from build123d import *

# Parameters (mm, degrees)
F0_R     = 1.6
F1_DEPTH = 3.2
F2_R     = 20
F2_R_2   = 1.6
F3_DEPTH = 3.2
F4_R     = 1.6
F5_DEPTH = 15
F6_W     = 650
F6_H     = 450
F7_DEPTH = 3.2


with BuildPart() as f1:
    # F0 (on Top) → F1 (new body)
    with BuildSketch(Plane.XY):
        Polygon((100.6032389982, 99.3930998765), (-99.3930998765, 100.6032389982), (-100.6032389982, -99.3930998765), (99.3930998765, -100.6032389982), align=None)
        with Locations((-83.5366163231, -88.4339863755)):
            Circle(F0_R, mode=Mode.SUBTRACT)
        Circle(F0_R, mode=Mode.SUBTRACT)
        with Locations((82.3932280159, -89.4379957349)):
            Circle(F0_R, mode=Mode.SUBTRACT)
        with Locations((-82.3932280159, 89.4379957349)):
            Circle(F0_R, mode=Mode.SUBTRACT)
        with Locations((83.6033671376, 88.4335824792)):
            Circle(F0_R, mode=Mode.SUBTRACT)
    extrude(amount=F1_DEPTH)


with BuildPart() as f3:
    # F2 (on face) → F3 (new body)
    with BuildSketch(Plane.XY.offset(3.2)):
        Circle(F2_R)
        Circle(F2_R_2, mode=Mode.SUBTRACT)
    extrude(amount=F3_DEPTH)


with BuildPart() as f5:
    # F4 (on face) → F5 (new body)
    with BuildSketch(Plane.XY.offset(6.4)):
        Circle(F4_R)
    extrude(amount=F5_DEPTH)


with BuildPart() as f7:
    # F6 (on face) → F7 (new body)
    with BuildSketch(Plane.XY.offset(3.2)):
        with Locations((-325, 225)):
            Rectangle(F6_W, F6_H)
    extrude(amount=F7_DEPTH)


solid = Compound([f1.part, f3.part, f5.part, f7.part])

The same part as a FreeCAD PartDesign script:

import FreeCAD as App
import Part
import Sketcher
from FreeCAD import Vector
Q = App.Units.Quantity

doc = App.newDocument("Part")
body = doc.addObject("PartDesign::Body", "Body")

# Sketch on XY plane
sketch1 = body.newObject("Sketcher::SketchObject", "Sketch")
sketch1.AttachmentSupport = (doc.getObject("XY_Plane"), [""])
sketch1.MapMode = "FlatFace"
sketch1.addGeometry(Part.LineSegment(Vector(100.603239, 99.3931, 0), Vector(-99.3931, 100.603239, 0)), False)
sketch1.addGeometry(Part.LineSegment(Vector(-99.3931, 100.603239, 0), Vector(-100.603239, -99.3931, 0)), False)
sketch1.addGeometry(Part.LineSegment(Vector(-100.603239, -99.3931, 0), Vector(99.3931, -100.603239, 0)), False)
sketch1.addGeometry(Part.LineSegment(Vector(99.3931, -100.603239, 0), Vector(100.603239, 99.3931, 0)), False)
sketch1.addGeometry(Part.Circle(Vector(-83.536616, -88.433986, 0), Vector(0, 0, 1), 1.6), False)
sketch1.addGeometry(Part.Circle(Vector(82.393228, -89.437996, 0), Vector(0, 0, 1), 1.6), False)
sketch1.addGeometry(Part.Circle(Vector(0, 0, 0), Vector(0, 0, 1), 1.6), False)
sketch1.addGeometry(Part.Circle(Vector(-82.393228, 89.437996, 0), Vector(0, 0, 1), 1.6), False)
sketch1.addGeometry(Part.Circle(Vector(83.603367, 88.433582, 0), Vector(0, 0, 1), 1.6), False)
sketch1.addConstraint(Sketcher.Constraint("Coincident", 0, 2, 1, 1))
sketch1.addConstraint(Sketcher.Constraint("Coincident", 1, 2, 2, 1))
sketch1.addConstraint(Sketcher.Constraint("Coincident", 2, 2, 3, 1))
sketch1.addConstraint(Sketcher.Constraint("Coincident", 3, 2, 0, 1))
sketch1.addConstraint(Sketcher.Constraint("Coincident", 6, 3, -1, 1))
sketch1.addConstraint(Sketcher.Constraint("Equal", 4, 5))
sketch1.addConstraint(Sketcher.Constraint("Equal", 5, 6))
sketch1.addConstraint(Sketcher.Constraint("Equal", 6, 7))
sketch1.addConstraint(Sketcher.Constraint("Equal", 7, 8))
sketch1.addConstraint(Sketcher.Constraint("Symmetric", 5, 3, 7, 3, -1, 1))
sketch1.addConstraint(Sketcher.Constraint("Symmetric", 0, 2, 2, 2, -1, 1))
sketch1.addConstraint(Sketcher.Constraint("Symmetric", 1, 2, 3, 2, -1, 1))
sketch1.addConstraint(Sketcher.Constraint("Perpendicular", 0, 1))
sketch1.addConstraint(Sketcher.Constraint("Equal", 0, 1))
sketch1.addConstraint(Sketcher.Constraint("Diameter", 4, Q("3.2 mm")))
sketch1.addConstraint(Sketcher.Constraint("Distance", 0, Q("200 mm")))
sketch1.addConstraint(Sketcher.Constraint("DistanceX", 0, 2, -1, 1, Q("99.3931 mm")))
sketch1.addConstraint(Sketcher.Constraint("DistanceX", -1, 1, 5, 3, Q("82.393228 mm")))
sketch1.addConstraint(Sketcher.Constraint("DistanceY", 5, 3, 4, 3, Q("1.004009 mm")))
sketch1.addConstraint(Sketcher.Constraint("DistanceX", 4, 3, 7, 3, Q("1.143388 mm")))
sketch1.addConstraint(Sketcher.Constraint("DistanceY", 5, 3, 7, 3, Q("178.875991 mm")))
sketch1.addConstraint(Sketcher.Constraint("DistanceX", 5, 3, 8, 3, Q("1.210139 mm")))
sketch1.addConstraint(Sketcher.Constraint("DistanceY", 5, 3, 8, 3, Q("177.871578 mm")))
pad1 = body.newObject("PartDesign::Pad", "Pad")
pad1.Profile = sketch1
pad1.Length = 3.2
body2 = doc.addObject("PartDesign::Body", "Body001")

# Sketch on XY plane
sketch2 = body2.newObject("Sketcher::SketchObject", "Sketch001")
sketch2.AttachmentSupport = (doc.getObject("XY_Plane001"), [""])
sketch2.MapMode = "FlatFace"
sketch2.AttachmentOffset = App.Placement(Vector(0, 0, 3.2), App.Rotation())
sketch2.addGeometry(Part.Circle(Vector(0, 0, 0), Vector(0, 0, 1), 20), False)
sketch2.addGeometry(Part.Circle(Vector(0, 0, 0), Vector(0, 0, 1), 1.6), False)
sketch2.addConstraint(Sketcher.Constraint("Coincident", 0, 3, -1, 1))
sketch2.addConstraint(Sketcher.Constraint("Coincident", 1, 3, -1, 1))
sketch2.addConstraint(Sketcher.Constraint("Diameter", 0, Q("40 mm")))
sketch2.addConstraint(Sketcher.Constraint("Diameter", 1, Q("3.2 mm")))
pad2 = body2.newObject("PartDesign::Pad", "Pad001")
pad2.Profile = sketch2
pad2.Length = 3.2
body3 = doc.addObject("PartDesign::Body", "Body002")

# Sketch on XY plane
sketch3 = body3.newObject("Sketcher::SketchObject", "Sketch002")
sketch3.AttachmentSupport = (doc.getObject("XY_Plane002"), [""])
sketch3.MapMode = "FlatFace"
sketch3.AttachmentOffset = App.Placement(Vector(0, 0, 6.4), App.Rotation())
sketch3.addGeometry(Part.Circle(Vector(0, 0, 0), Vector(0, 0, 1), 1.6), False)
sketch3.addConstraint(Sketcher.Constraint("Coincident", 0, 3, -1, 1))
sketch3.addConstraint(Sketcher.Constraint("Diameter", 0, Q("3.2 mm")))
pad3 = body3.newObject("PartDesign::Pad", "Pad002")
pad3.Profile = sketch3
pad3.Length = 15
body4 = doc.addObject("PartDesign::Body", "Body003")

# Sketch on XY plane
sketch4 = body4.newObject("Sketcher::SketchObject", "Sketch003")
sketch4.AttachmentSupport = (doc.getObject("XY_Plane003"), [""])
sketch4.MapMode = "FlatFace"
sketch4.AttachmentOffset = App.Placement(Vector(0, 0, 3.2), App.Rotation())
sketch4.addGeometry(Part.LineSegment(Vector(-650, 450, 0), Vector(-650, 0, 0)), False)
sketch4.addGeometry(Part.LineSegment(Vector(-650, 0, 0), Vector(0, 0, 0)), False)
sketch4.addGeometry(Part.LineSegment(Vector(0, 0, 0), Vector(0, 450, 0)), False)
sketch4.addGeometry(Part.LineSegment(Vector(0, 450, 0), Vector(-650, 450, 0)), False)
sketch4.addConstraint(Sketcher.Constraint("Coincident", 0, 2, 1, 1))
sketch4.addConstraint(Sketcher.Constraint("Coincident", 1, 2, 2, 1))
sketch4.addConstraint(Sketcher.Constraint("Coincident", 2, 2, 3, 1))
sketch4.addConstraint(Sketcher.Constraint("Coincident", 3, 2, 0, 1))
sketch4.addConstraint(Sketcher.Constraint("Vertical", 0))
sketch4.addConstraint(Sketcher.Constraint("Horizontal", 1))
sketch4.addConstraint(Sketcher.Constraint("Vertical", 2))
sketch4.addConstraint(Sketcher.Constraint("Horizontal", 3))
sketch4.addConstraint(Sketcher.Constraint("Coincident", 1, 2, -1, 1))
sketch4.addConstraint(Sketcher.Constraint("DistanceX", 1, 1, 1, 2, Q("650 mm")))
sketch4.addConstraint(Sketcher.Constraint("DistanceY", 0, 2, 0, 1, Q("450 mm")))
pad4 = body4.newObject("PartDesign::Pad", "Pad003")
pad4.Profile = sketch4
pad4.Length = 3.2

doc.recompute()
